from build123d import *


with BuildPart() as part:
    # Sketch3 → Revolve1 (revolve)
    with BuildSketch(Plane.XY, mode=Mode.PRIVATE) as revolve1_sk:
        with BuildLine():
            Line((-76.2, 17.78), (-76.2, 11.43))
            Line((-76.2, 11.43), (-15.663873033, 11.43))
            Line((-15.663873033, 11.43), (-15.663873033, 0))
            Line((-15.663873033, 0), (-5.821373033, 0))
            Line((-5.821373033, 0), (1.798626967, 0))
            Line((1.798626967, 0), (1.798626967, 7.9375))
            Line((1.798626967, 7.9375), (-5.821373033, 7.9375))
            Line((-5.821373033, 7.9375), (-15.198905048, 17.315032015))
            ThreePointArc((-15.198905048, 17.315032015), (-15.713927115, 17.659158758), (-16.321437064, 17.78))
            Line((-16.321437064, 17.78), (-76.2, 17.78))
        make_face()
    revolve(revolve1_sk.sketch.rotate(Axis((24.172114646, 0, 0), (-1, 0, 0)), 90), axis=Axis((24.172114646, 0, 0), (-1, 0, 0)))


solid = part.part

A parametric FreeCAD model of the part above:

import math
import FreeCAD as App
import Part
import Sketcher
Q = App.Units.Quantity

doc = App.newDocument("Part")
body = doc.addObject("PartDesign::Body", "Body")

sketch1 = body.newObject("Sketcher::SketchObject", "Sketch")
sketch1.AttachmentSupport = (doc.getObject("XY_Plane"), [""])
sketch1.MapMode = "FlatFace"
sketch1.addGeometry([
    Part.LineSegment(App.Vector(-76.2, 17.78, 0), App.Vector(-76.2, 11.43, 0)),
    Part.LineSegment(App.Vector(-76.2, 11.43, 0), App.Vector(-15.663873, 11.43, 0)),
    Part.LineSegment(App.Vector(-15.663873, 11.43, 0), App.Vector(-15.663873, 0, 0)),
    Part.LineSegment(App.Vector(-15.663873, 0, 0), App.Vector(1.798627, 0, 0)),
    Part.LineSegment(App.Vector(1.798627, 0, 0), App.Vector(1.798627, 7.9375, 0)),
    Part.LineSegment(App.Vector(1.798627, 7.9375, 0), App.Vector(-5.821373, 7.9375, 0)),
    Part.LineSegment(App.Vector(-5.821373, 7.9375, 0), App.Vector(-15.198905, 17.315032, 0)),
    Part.ArcOfCircle(Part.Circle(App.Vector(-16.321437, 16.1925, 0), App.Vector(0, 0, 1), 1.5875), math.radians(45), math.radians(90)),
    Part.LineSegment(App.Vector(-16.321437, 17.78, 0), App.Vector(-76.2, 17.78, 0)),
], False)
sketch1.addConstraint([
    Sketcher.Constraint("Coincident", 0, 2, 1, 1),
    Sketcher.Constraint("Coincident", 1, 2, 2, 1),
    Sketcher.Constraint("Coincident", 2, 2, 3, 1),
    Sketcher.Constraint("Coincident", 3, 2, 4, 1),
    Sketcher.Constraint("Coincident", 4, 2, 5, 1),
    Sketcher.Constraint("Coincident", 5, 2, 6, 1),
    Sketcher.Constraint("Tangent", 6, 2, 7, 1),
    Sketcher.Constraint("Tangent", 7, 2, 8, 1),
    Sketcher.Constraint("Coincident", 8, 2, 0, 1),
    Sketcher.Constraint("Vertical", 0),
    Sketcher.Constraint("Horizontal", 1),
    Sketcher.Constraint("Vertical", 2),
    Sketcher.Constraint("Horizontal", 3),
    Sketcher.Constraint("Vertical", 4),
    Sketcher.Constraint("Horizontal", 5),
    Sketcher.Constraint("Horizontal", 8),
    Sketcher.Constraint("PointOnObject", 2, 2, -1),
    Sketcher.Constraint("DistanceX", 5, 2, 5, 1, Q("0.3 in")),
    Sketcher.Constraint("DistanceX", 0, 2, -1, 1, Q("3 in")),
    Sketcher.Constraint("Angle", 6, Q("135 deg")),
    Sketcher.Constraint("Radius", 7, Q("0.0625 in")),
    Sketcher.Constraint("DistanceY", 0, 2, 0, 1, Q("0.25 in")),
    Sketcher.Constraint("DistanceY", 2, 2, 2, 1, Q("0.45 in")),
    Sketcher.Constraint("DistanceX", 3, 1, 3, 2, Q("0.6875 in")),
    Sketcher.Constraint("DistanceY", 4, 1, 4, 2, Q("0.3125 in")),
    Sketcher.Constraint("DistanceX", 1, 1, 1, 2, Q("60.536127 mm")),
])
revolution = body.newObject("PartDesign::Revolution", "Revolution")
revolution.Profile = sketch1
revolution.ReferenceAxis = (sketch1, ["H_Axis"])
revolution.Angle = 360

doc.recompute()
